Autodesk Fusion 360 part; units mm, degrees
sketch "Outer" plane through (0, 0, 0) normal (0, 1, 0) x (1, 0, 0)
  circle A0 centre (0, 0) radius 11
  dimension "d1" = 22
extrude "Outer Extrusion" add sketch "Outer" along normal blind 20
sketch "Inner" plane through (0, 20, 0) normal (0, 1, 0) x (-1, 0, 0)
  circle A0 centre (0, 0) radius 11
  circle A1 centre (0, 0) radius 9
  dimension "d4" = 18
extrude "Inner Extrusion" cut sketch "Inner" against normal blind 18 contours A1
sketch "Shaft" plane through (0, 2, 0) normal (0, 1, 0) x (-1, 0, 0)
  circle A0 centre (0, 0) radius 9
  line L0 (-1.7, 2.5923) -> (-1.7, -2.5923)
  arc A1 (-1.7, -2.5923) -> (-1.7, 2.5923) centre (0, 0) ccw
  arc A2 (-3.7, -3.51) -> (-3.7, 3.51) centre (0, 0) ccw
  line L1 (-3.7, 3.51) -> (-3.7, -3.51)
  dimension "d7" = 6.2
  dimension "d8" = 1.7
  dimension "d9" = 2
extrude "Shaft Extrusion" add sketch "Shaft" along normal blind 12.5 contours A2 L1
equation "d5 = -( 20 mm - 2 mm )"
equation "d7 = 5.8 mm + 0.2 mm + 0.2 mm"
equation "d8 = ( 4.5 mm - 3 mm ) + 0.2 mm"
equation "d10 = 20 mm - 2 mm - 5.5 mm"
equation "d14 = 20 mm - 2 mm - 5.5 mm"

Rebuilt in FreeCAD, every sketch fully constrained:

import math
import FreeCAD as App
import Part
import Sketcher

V = App.Vector

doc = App.newDocument("Part")
body = doc.addObject("PartDesign::Body", "Body")

# Sketch on XZ plane
sketch1 = body.newObject("Sketcher::SketchObject", "Sketch")
sketch1.AttachmentSupport = (doc.getObject("XZ_Plane"), [""])
sketch1.MapMode = "FlatFace"
sketch1.addGeometry(Part.Circle(V(0, 0, 0), V(0, 0, 1), 11), False)
sketch1.addConstraint([
    Sketcher.Constraint("Coincident", 0, 3, -1, 1),
    Sketcher.Constraint("Diameter", 0, 22.0),
])
pad1 = body.newObject("PartDesign::Pad", "Pad")
pad1.Profile = sketch1
pad1.Length = 20
pad1.Reversed = True

# Sketch on XZ plane
sketch2 = body.newObject("Sketcher::SketchObject", "Sketch001")
sketch2.AttachmentSupport = (doc.getObject("XZ_Plane"), [""])
sketch2.MapMode = "FlatFace"
sketch2.AttachmentOffset = App.Placement(V(0, 0, -20), App.Rotation())
sketch2.addGeometry(Part.Circle(V(0, 0, 0), V(0, 0, 1), 9), False)
sketch2.addConstraint([
    Sketcher.Constraint("Coincident", 0, 3, -1, 1),
    Sketcher.Constraint("Diameter", 0, 18.0),
])
pocket1 = body.newObject("PartDesign::Pocket", "Pocket")
pocket1.Profile = sketch2
pocket1.Length = 18
pocket1.Reversed = True

# Sketch on XZ plane
sketch3 = body.newObject("Sketcher::SketchObject", "Sketch002")
sketch3.AttachmentSupport = (doc.getObject("XZ_Plane"), [""])
sketch3.MapMode = "FlatFace"
sketch3.AttachmentOffset = App.Placement(V(0, 0, -2), App.Rotation())
sketch3.addGeometry([
    Part.LineSegment(V(3.7, 3.5, 0), V(3.7, -3.5, 0)),
    Part.ArcOfCircle(Part.Circle(V(0, 0, 0), V(0, 0, 1), 5.1), math.radians(43), math.radians(317)),
    Part.LineSegment(V(1.7, -2.6, 0), V(1.7, 2.6, 0)),
    Part.ArcOfCircle(Part.Circle(V(0, 0, 0), V(0, 0, 1), 3.1), math.radians(57), math.radians(303)),
], False)
sketch3.addConstraint([
    Sketcher.Constraint("Coincident", 0, 1, 1, 1),
    Sketcher.Constraint("Coincident", 1, 2, 0, 2),
    Sketcher.Constraint("Coincident", 2, 1, 3, 2),
    Sketcher.Constraint("Coincident", 3, 1, 2, 2),
    Sketcher.Constraint("Vertical", 0),
    Sketcher.Constraint("Vertical", 2),
    Sketcher.Constraint("Coincident", 1, 3, -1, 1),
    Sketcher.Constraint("Coincident", 3, 3, -1, 1),
    Sketcher.Constraint("Radius", 3, 3.1),
    Sketcher.Constraint("DistanceX", 2, 1, 1, 2, 2.0),
    Sketcher.Constraint("DistanceX", -1, 1, 2, 1, 1.7),
    Sketcher.Constraint("Radius", 1, 5.1),
])
pad2 = body.newObject("PartDesign::Pad", "Pad001")
pad2.Profile = sketch3
pad2.Length = 12.5
pad2.Reversed = True

doc.recompute()
